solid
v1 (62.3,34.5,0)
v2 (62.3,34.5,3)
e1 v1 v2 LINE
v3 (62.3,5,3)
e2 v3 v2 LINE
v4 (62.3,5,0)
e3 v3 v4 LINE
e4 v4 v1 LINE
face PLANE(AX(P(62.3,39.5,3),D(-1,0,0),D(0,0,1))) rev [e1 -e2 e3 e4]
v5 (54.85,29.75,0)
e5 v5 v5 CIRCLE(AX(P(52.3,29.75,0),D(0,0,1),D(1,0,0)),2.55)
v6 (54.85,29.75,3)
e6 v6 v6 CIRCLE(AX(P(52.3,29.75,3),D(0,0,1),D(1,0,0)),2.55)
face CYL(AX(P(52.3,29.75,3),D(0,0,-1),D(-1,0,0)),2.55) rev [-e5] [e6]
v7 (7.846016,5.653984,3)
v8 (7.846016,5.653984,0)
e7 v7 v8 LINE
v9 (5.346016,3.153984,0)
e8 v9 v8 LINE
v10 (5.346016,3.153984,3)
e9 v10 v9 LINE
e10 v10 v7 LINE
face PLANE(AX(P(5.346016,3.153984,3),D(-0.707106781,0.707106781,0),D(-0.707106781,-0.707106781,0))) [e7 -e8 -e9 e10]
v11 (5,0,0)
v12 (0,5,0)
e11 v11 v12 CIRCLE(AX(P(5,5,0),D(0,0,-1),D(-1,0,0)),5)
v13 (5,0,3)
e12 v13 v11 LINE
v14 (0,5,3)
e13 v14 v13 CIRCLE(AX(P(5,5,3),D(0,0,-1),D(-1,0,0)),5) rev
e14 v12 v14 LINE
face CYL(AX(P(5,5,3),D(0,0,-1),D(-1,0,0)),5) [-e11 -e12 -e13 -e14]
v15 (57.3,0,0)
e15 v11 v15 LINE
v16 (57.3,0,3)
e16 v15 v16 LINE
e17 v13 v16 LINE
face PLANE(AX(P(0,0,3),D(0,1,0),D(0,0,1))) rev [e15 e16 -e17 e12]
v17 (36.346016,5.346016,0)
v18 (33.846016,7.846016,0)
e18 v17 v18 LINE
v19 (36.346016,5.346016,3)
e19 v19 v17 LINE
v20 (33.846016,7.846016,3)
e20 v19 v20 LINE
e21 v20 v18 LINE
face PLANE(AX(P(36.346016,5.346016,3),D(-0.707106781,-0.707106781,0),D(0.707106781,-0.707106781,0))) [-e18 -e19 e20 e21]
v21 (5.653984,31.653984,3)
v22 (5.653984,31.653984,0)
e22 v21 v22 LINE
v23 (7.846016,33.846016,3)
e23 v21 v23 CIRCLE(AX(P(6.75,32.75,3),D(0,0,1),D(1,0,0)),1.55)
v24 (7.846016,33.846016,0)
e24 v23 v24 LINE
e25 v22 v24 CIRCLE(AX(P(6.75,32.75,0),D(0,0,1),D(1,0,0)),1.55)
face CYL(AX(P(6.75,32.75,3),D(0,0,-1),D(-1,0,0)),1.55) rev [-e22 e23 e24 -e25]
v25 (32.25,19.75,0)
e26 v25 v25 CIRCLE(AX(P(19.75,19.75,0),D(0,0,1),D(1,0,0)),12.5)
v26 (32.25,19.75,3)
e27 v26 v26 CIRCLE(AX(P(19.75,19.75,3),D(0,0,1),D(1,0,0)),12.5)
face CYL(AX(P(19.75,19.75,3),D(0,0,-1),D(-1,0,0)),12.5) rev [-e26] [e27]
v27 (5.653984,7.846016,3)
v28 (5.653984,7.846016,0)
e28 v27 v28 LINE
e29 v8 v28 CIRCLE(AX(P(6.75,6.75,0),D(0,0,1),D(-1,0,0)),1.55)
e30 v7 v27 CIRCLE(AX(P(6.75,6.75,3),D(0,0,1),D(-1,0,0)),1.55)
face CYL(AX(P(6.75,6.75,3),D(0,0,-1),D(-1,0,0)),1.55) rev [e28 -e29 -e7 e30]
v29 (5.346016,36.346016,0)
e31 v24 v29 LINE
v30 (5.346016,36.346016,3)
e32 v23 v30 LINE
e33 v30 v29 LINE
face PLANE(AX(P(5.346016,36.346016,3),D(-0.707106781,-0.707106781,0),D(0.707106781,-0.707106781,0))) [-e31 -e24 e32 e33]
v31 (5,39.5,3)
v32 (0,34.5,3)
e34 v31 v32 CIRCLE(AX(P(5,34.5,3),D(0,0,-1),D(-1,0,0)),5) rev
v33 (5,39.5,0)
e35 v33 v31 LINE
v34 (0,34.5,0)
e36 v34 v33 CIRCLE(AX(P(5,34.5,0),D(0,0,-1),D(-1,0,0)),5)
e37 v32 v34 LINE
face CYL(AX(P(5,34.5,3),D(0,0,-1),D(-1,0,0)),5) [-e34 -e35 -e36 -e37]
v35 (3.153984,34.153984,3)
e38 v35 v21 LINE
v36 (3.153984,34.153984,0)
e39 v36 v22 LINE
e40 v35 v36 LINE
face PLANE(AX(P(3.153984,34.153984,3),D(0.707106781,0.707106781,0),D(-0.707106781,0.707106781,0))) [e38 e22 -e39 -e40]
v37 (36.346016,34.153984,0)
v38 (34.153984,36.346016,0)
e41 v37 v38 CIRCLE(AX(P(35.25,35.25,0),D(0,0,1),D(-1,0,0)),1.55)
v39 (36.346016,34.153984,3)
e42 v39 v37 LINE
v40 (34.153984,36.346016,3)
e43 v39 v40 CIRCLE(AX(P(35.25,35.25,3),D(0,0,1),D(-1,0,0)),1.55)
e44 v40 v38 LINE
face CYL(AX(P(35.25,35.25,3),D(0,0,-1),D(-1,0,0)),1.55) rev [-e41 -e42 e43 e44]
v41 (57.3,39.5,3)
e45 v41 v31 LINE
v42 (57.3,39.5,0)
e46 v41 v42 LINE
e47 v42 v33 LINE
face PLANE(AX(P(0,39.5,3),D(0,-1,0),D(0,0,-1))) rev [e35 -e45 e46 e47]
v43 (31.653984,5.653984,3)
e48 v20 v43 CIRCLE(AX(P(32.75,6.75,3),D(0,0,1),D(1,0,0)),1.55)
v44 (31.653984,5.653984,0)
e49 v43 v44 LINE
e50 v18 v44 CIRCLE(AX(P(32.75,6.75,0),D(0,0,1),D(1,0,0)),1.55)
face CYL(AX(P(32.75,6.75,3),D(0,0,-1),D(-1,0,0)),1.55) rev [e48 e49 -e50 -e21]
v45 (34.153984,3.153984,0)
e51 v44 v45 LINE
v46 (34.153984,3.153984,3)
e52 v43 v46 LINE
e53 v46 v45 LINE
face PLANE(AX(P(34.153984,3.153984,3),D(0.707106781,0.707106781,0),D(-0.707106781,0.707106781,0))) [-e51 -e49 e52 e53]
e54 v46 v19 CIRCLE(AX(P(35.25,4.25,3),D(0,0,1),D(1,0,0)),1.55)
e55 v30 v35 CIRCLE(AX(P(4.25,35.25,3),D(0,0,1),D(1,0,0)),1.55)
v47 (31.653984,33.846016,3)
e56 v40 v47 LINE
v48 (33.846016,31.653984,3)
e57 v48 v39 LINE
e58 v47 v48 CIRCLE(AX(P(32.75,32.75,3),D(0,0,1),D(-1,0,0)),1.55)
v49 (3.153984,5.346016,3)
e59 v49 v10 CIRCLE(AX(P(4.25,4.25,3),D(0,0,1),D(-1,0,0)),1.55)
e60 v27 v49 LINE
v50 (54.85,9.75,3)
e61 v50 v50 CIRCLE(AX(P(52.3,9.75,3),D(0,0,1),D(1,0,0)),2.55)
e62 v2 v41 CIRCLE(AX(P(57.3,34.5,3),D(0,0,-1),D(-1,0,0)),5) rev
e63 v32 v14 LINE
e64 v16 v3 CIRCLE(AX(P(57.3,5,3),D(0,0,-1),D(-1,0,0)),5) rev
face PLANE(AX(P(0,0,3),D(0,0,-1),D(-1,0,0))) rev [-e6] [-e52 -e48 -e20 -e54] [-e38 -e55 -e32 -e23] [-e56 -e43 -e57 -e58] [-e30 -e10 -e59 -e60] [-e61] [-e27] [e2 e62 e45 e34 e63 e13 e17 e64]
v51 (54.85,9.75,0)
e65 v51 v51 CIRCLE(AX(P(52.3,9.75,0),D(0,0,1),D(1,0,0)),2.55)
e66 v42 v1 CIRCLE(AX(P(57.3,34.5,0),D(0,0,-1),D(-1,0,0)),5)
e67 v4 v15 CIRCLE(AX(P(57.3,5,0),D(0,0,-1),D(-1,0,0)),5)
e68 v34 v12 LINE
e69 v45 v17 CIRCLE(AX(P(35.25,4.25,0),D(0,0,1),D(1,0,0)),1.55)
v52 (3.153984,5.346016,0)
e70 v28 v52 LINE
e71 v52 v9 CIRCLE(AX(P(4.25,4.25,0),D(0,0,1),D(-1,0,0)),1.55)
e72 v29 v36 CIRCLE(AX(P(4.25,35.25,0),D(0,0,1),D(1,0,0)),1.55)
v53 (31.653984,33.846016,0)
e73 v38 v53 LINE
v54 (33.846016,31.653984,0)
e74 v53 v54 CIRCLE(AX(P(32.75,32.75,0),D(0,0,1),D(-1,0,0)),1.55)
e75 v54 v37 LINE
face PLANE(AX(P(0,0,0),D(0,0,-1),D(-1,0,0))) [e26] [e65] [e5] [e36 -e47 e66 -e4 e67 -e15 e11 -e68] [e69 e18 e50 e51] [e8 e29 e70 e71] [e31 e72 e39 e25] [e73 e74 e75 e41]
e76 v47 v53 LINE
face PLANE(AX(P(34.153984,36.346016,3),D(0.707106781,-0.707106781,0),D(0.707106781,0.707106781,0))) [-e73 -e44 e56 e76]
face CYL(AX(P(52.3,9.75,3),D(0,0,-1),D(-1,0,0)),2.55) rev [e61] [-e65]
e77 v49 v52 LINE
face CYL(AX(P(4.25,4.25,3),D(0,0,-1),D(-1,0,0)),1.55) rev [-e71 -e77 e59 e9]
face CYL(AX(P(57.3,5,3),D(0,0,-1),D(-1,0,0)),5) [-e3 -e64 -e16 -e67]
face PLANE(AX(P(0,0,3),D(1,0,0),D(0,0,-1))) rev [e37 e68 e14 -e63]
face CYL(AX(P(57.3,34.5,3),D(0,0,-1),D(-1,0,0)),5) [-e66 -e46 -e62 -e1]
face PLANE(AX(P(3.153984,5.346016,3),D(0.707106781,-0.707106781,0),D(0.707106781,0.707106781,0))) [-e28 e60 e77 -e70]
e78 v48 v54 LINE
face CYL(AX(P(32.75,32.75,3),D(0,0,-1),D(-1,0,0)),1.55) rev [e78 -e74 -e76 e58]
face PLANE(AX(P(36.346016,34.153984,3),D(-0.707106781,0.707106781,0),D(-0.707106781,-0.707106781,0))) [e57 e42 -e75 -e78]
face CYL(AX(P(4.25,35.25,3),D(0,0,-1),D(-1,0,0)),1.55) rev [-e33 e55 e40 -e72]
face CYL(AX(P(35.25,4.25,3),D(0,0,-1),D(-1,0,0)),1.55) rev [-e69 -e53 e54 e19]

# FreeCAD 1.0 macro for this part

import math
import FreeCAD as App
import Part
import Sketcher
from FreeCAD import Vector
Q = App.Units.Quantity


def edges_at(feature, points):
    """Names of the edges that pass closest to the given points."""
    edges = feature.Shape.Edges
    near = lambda p: min(range(len(edges)), key=lambda i: edges[i].distToShape(Part.Vertex(*p))[0])
    return sorted({f"Edge{near(p) + 1}" for p in points})


def add_polygon(sketch, points):
    """Adds a closed chain of lines whose ends are joined by coincident constraints."""
    first, n = sketch.GeometryCount, len(points)
    for a, b in zip(points, points[1:] + points[:1]):
        sketch.addGeometry(Part.LineSegment(App.Vector(*a, 0), App.Vector(*b, 0)), False)
    for i in range(n):
        sketch.addConstraint(Sketcher.Constraint("Coincident", first + i, 2, first + (i + 1) % n, 1))

doc = App.newDocument("Part")
body = doc.addObject("PartDesign::Body", "Body")

sketch1 = body.newObject("Sketcher::SketchObject", "Sketch")
sketch1.AttachmentSupport = (doc.getObject("XY_Plane"), [""])
sketch1.MapMode = "FlatFace"
add_polygon(sketch1, [(0, 39.5), (0, 0), (62.3, 0), (62.3, 39.5)])
sketch1.addGeometry(Part.LineSegment(Vector(7.846016, 5.653984, 0), Vector(5.346016, 3.153984, 0)), False)
sketch1.addGeometry(Part.ArcOfCircle(Part.Circle(Vector(4.25, 4.25, 0), Vector(0, 0, 1), 1.55), math.radians(135), math.radians(315)), False)
sketch1.addGeometry(Part.LineSegment(Vector(3.153984, 5.346016, 0), Vector(5.653984, 7.846016, 0)), False)
sketch1.addGeometry(Part.ArcOfCircle(Part.Circle(Vector(6.75, 6.75, 0), Vector(0, 0, 1), 1.55), math.radians(-45), math.radians(135)), False)
sketch1.addGeometry(Part.ArcOfCircle(Part.Circle(Vector(35.25, 4.25, 0), Vector(0, 0, 1), 1.55), math.radians(-135), math.radians(45)), False)
sketch1.addGeometry(Part.LineSegment(Vector(34.153984, 3.153984, 0), Vector(31.653984, 5.653984, 0)), False)
sketch1.addGeometry(Part.ArcOfCircle(Part.Circle(Vector(32.75, 6.75, 0), Vector(0, 0, 1), 1.55), math.radians(45), math.radians(225)), False)
sketch1.addGeometry(Part.LineSegment(Vector(33.846016, 7.846016, 0), Vector(36.346016, 5.346016, 0)), False)
sketch1.addGeometry(Part.Circle(Vector(52.3, 9.75, 0), Vector(0, 0, 1), 2.55), False)
sketch1.addGeometry(Part.Circle(Vector(19.75, 19.75, 0), Vector(0, 0, 1), 12.5), False)
sketch1.addGeometry(Part.ArcOfCircle(Part.Circle(Vector(4.25, 35.25, 0), Vector(0, 0, 1), 1.55), math.radians(45), math.radians(225)), False)
sketch1.addGeometry(Part.LineSegment(Vector(5.346016, 36.346016, 0), Vector(7.846016, 33.846016, 0)), False)
sketch1.addGeometry(Part.ArcOfCircle(Part.Circle(Vector(6.75, 32.75, 0), Vector(0, 0, 1), 1.55), math.radians(-135), math.radians(45)), False)
sketch1.addGeometry(Part.LineSegment(Vector(5.653984, 31.653984, 0), Vector(3.153984, 34.153984, 0)), False)
sketch1.addGeometry(Part.LineSegment(Vector(31.653984, 33.846016, 0), Vector(34.153984, 36.346016, 0)), False)
sketch1.addGeometry(Part.ArcOfCircle(Part.Circle(Vector(35.25, 35.25, 0), Vector(0, 0, 1), 1.55), math.radians(-45), math.radians(135)), False)
sketch1.addGeometry(Part.LineSegment(Vector(36.346016, 34.153984, 0), Vector(33.846016, 31.653984, 0)), False)
sketch1.addGeometry(Part.ArcOfCircle(Part.Circle(Vector(32.75, 32.75, 0), Vector(0, 0, 1), 1.55), math.radians(135), math.radians(315)), False)
sketch1.addGeometry(Part.Circle(Vector(52.3, 29.75, 0), Vector(0, 0, 1), 2.55), False)
sketch1.addConstraint(Sketcher.Constraint("Tangent", 4, 2, 5, 2))
sketch1.addConstraint(Sketcher.Constraint("Tangent", 5, 1, 6, 1))
sketch1.addConstraint(Sketcher.Constraint("Tangent", 6, 2, 7, 2))
sketch1.addConstraint(Sketcher.Constraint("Tangent", 7, 1, 4, 1))
sketch1.addConstraint(Sketcher.Constraint("Tangent", 8, 1, 9, 1))
sketch1.addConstraint(Sketcher.Constraint("Tangent", 9, 2, 10, 2))
sketch1.addConstraint(Sketcher.Constraint("Tangent", 10, 1, 11, 1))
sketch1.addConstraint(Sketcher.Constraint("Tangent", 11, 2, 8, 2))
sketch1.addConstraint(Sketcher.Constraint("Tangent", 14, 1, 15, 1))
sketch1.addConstraint(Sketcher.Constraint("Tangent", 15, 2, 16, 2))
sketch1.addConstraint(Sketcher.Constraint("Tangent", 16, 1, 17, 1))
sketch1.addConstraint(Sketcher.Constraint("Tangent", 17, 2, 14, 2))
sketch1.addConstraint(Sketcher.Constraint("Tangent", 18, 2, 19, 2))
sketch1.addConstraint(Sketcher.Constraint("Tangent", 19, 1, 20, 1))
sketch1.addConstraint(Sketcher.Constraint("Tangent", 20, 2, 21, 2))
sketch1.addConstraint(Sketcher.Constraint("Tangent", 21, 1, 18, 1))
sketch1.addConstraint(Sketcher.Constraint("Vertical", 0))
sketch1.addConstraint(Sketcher.Constraint("Horizontal", 1))
sketch1.addConstraint(Sketcher.Constraint("Vertical", 2))
sketch1.addConstraint(Sketcher.Constraint("Horizontal", 3))
sketch1.addConstraint(Sketcher.Constraint("Coincident", 0, 2, -1, 1))
sketch1.addConstraint(Sketcher.Constraint("Equal", 5, 7))
sketch1.addConstraint(Sketcher.Constraint("Equal", 7, 8))
sketch1.addConstraint(Sketcher.Constraint("Equal", 8, 10))
sketch1.addConstraint(Sketcher.Constraint("Equal", 10, 14))
sketch1.addConstraint(Sketcher.Constraint("Equal", 14, 16))
sketch1.addConstraint(Sketcher.Constraint("Equal", 16, 19))
sketch1.addConstraint(Sketcher.Constraint("Equal", 19, 21))
sketch1.addConstraint(Sketcher.Constraint("Equal", 12, 22))
sketch1.addConstraint(Sketcher.Constraint("Perpendicular", 6, 9))
sketch1.addConstraint(Sketcher.Constraint("Parallel", 11, 15))
sketch1.addConstraint(Sketcher.Constraint("Perpendicular", 17, 18))
sketch1.addConstraint(Sketcher.Constraint("Horizontal", 5, 3, 8, 3))
sketch1.addConstraint(Sketcher.Constraint("Horizontal", 7, 3, 10, 3))
sketch1.addConstraint(Sketcher.Constraint("Horizontal", 14, 3, 19, 3))
sketch1.addConstraint(Sketcher.Constraint("Horizontal", 16, 3, 21, 3))
sketch1.addConstraint(Sketcher.Constraint("Horizontal", 4, 2, 8, 1))
sketch1.addConstraint(Sketcher.Constraint("Vertical", 5, 3, 14, 3))
sketch1.addConstraint(Sketcher.Constraint("Vertical", 7, 3, 16, 3))
sketch1.addConstraint(Sketcher.Constraint("Vertical", 8, 3, 19, 3))
sketch1.addConstraint(Sketcher.Constraint("Vertical", 12, 3, 22, 3))
sketch1.addConstraint(Sketcher.Constraint("Diameter", 13, Q("25 mm")))
sketch1.addConstraint(Sketcher.Constraint("Diameter", 12, Q("5.1 mm")))
sketch1.addConstraint(Sketcher.Constraint("Radius", 5, Q("1.55 mm")))
sketch1.addConstraint(Sketcher.Constraint("DistanceX", 1, 1, 1, 2, Q("62.3 mm")))
sketch1.addConstraint(Sketcher.Constraint("DistanceY", 0, 2, 0, 1, Q("39.5 mm")))
sketch1.addConstraint(Sketcher.Constraint("DistanceX", 5, 3, 8, 3, Q("31 mm")))
sketch1.addConstraint(Sketcher.Constraint("DistanceX", 7, 3, 10, 3, Q("26 mm")))
sketch1.addConstraint(Sketcher.Constraint("DistanceY", 10, 3, 12, 3, Q("3 mm")))
sketch1.addConstraint(Sketcher.Constraint("DistanceX", 7, 3, 13, 3, Q("13 mm")))
sketch1.addConstraint(Sketcher.Constraint("DistanceY", 7, 3, 13, 3, Q("13 mm")))
sketch1.addConstraint(Sketcher.Constraint("DistanceY", 5, 3, 14, 3, Q("31 mm")))
sketch1.addConstraint(Sketcher.Constraint("DistanceY", 22, 3, 21, 3, Q("3 mm")))
sketch1.addConstraint(Sketcher.Constraint("DistanceX", 12, 3, 1, 2, Q("10 mm")))
sketch1.addConstraint(Sketcher.Constraint("DistanceX", -1, 1, 5, 3, Q("4.25 mm")))
sketch1.addConstraint(Sketcher.Constraint("DistanceY", -1, 1, 5, 3, Q("4.25 mm")))
pad1 = body.newObject("PartDesign::Pad", "Pad")
pad1.Profile = sketch1
pad1.Length = 3
doc.recompute()

fillet = body.newObject("PartDesign::Fillet", "Fillet")
fillet.Base = (pad1, edges_at(pad1, [
    (0, 39.5, 1.5),
    (62.3, 39.5, 1.5),
    (62.3, 0, 1.5),
    (0, 0, 1.5),
]))
fillet.Radius = 5

doc.recompute()
